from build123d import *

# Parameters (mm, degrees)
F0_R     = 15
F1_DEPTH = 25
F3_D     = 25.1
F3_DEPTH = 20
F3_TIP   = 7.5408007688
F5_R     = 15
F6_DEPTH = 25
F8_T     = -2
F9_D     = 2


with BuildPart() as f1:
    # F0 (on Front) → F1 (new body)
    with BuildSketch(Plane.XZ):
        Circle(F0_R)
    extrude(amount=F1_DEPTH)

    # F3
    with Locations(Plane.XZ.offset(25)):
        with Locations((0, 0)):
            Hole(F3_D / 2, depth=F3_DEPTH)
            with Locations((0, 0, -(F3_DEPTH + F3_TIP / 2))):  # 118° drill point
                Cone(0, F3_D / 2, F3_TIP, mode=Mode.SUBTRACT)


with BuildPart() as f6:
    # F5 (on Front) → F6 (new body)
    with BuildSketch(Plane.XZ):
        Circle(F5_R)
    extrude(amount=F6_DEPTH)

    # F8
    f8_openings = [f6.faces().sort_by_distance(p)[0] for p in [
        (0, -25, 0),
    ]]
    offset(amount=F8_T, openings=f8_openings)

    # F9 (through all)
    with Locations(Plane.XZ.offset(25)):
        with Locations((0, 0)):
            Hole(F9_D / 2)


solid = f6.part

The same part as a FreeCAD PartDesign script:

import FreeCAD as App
import Part
import Sketcher
from FreeCAD import Vector
Q = App.Units.Quantity


def faces_at(feature, points):
    """Names of the faces that lie closest to the given points."""
    faces = feature.Shape.Faces
    near = lambda p: min(range(len(faces)), key=lambda i: faces[i].distToShape(Part.Vertex(*p))[0])
    return sorted({f"Face{near(p) + 1}" for p in points})

doc = App.newDocument("Part")
params = doc.addObject("Spreadsheet::Sheet", "Params")
for row, (alias, value) in enumerate([
    ("sketch1_diameter", "30 mm"),
    ("pad1_length", "25 mm"),
    ("sketch2_diameter", "25.1 mm"),
    ("hole_diameter", "25.1 mm"),
    ("hole_depth", "20 mm"),
    ("sketch3_diameter", "30 mm"),
    ("pad2_length", "25 mm"),
    ("thickness_wall", "2 mm"),
    ("sketch4_diameter", "2 mm"),
    ("hole2_diameter", "2 mm"),
], start=1):
    params.set(f"A{row}", alias)
    params.set(f"B{row}", "=" + value)
    params.setAlias(f"B{row}", alias)

body = doc.addObject("PartDesign::Body", "Body")

# Sketch on XZ plane
sketch1 = body.newObject("Sketcher::SketchObject", "Sketch")
sketch1.AttachmentSupport = (doc.getObject("XZ_Plane"), [""])
sketch1.MapMode = "FlatFace"
sketch1.addGeometry(Part.Circle(Vector(0, 0, 0), Vector(0, 0, 1), 15), False)
sketch1.addConstraint(Sketcher.Constraint("Coincident", 0, 3, -1, 1))
sketch1.addConstraint(Sketcher.Constraint("Diameter", 0, Q("30 mm")))
sketch1.setExpression("Constraints[1]", "Params.sketch1_diameter")
pad1 = body.newObject("PartDesign::Pad", "Pad")
pad1.Profile = sketch1
pad1.setExpression("Length", "Params.pad1_length")

# Sketch on XZ plane
sketch2 = body.newObject("Sketcher::SketchObject", "Sketch001")
sketch2.AttachmentSupport = (doc.getObject("XZ_Plane"), [""])
sketch2.MapMode = "FlatFace"
sketch2.AttachmentOffset = App.Placement(Vector(0, 0, 25), App.Rotation())
sketch2.addGeometry(Part.Circle(Vector(0, 0, 0), Vector(0, 0, 1), 13), False)
sketch2.addConstraint(Sketcher.Constraint("Coincident", 0, 3, -1, 1))
sketch2.addConstraint(Sketcher.Constraint("Diameter", 0, Q("25.1 mm")))
sketch2.setExpression("Constraints[1]", "Params.sketch2_diameter")
doc.recompute()
hole = body.newObject("PartDesign::Hole", "Hole")
hole.Profile = sketch2
hole.ThreadType = "None"
hole.setExpression("Diameter", "Params.hole_diameter")
hole.DepthType = "Dimension"
hole.setExpression("Depth", "Params.hole_depth")
hole.DrillPoint = "Angled"
hole.DrillPointAngle = 118
body2 = doc.addObject("PartDesign::Body", "Body001")

# Sketch on XZ plane
sketch3 = body2.newObject("Sketcher::SketchObject", "Sketch002")
sketch3.AttachmentSupport = (doc.getObject("XZ_Plane001"), [""])
sketch3.MapMode = "FlatFace"
sketch3.addGeometry(Part.Circle(Vector(0, 0, 0), Vector(0, 0, 1), 15), False)
sketch3.addConstraint(Sketcher.Constraint("Coincident", 0, 3, -1, 1))
sketch3.addConstraint(Sketcher.Constraint("Diameter", 0, Q("30 mm")))
sketch3.setExpression("Constraints[1]", "Params.sketch3_diameter")
pad2 = body2.newObject("PartDesign::Pad", "Pad001")
pad2.Profile = sketch3
pad2.setExpression("Length", "Params.pad2_length")
doc.recompute()

thickness = body2.newObject("PartDesign::Thickness", "Thickness")
thickness.Base = (pad2, faces_at(pad2, [(0, -25, 0)]))
thickness.setExpression("Value", "Params.thickness_wall")
thickness.Reversed = True
thickness.Join = "Arc"

# Sketch on XZ plane
sketch4 = body2.newObject("Sketcher::SketchObject", "Sketch003")
sketch4.AttachmentSupport = (doc.getObject("XZ_Plane001"), [""])
sketch4.MapMode = "FlatFace"
sketch4.AttachmentOffset = App.Placement(Vector(0, 0, 25), App.Rotation())
sketch4.addGeometry(Part.Circle(Vector(0, 0, 0), Vector(0, 0, 1), 1), False)
sketch4.addConstraint(Sketcher.Constraint("Coincident", 0, 3, -1, 1))
sketch4.addConstraint(Sketcher.Constraint("Diameter", 0, Q("2 mm")))
sketch4.setExpression("Constraints[1]", "Params.sketch4_diameter")
doc.recompute()
hole2 = body2.newObject("PartDesign::Hole", "Hole001")
hole2.Profile = sketch4
hole2.ThreadType = "None"
hole2.setExpression("Diameter", "Params.hole2_diameter")
hole2.DepthType = "ThroughAll"
body.Visibility = False

doc.recompute()
